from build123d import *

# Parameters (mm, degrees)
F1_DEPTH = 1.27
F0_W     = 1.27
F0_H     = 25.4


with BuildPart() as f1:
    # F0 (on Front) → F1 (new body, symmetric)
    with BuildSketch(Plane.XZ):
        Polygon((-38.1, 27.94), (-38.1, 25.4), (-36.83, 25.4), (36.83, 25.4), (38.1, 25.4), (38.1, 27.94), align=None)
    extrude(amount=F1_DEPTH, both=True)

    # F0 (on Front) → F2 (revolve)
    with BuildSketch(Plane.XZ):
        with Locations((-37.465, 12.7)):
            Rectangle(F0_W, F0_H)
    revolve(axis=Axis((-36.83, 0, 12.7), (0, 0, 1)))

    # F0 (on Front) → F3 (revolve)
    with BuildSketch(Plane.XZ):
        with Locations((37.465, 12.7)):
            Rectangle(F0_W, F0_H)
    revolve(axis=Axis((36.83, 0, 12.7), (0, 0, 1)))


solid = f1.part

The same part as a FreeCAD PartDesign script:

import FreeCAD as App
import Part
import Sketcher

V = App.Vector
Q = App.Units.Quantity

doc = App.newDocument("Part")
body = doc.addObject("PartDesign::Body", "Body")

# Sketch on XZ plane
sketch1 = body.newObject("Sketcher::SketchObject", "Sketch")
sketch1.AttachmentSupport = (doc.getObject("XZ_Plane"), [""])
sketch1.MapMode = "FlatFace"
sketch1.addGeometry([
    Part.LineSegment(V(-38.1, 27.9, 0), V(-38.1, 25.4, 0)),
    Part.LineSegment(V(-38.1, 25.4, 0), V(38.1, 25.4, 0)),
    Part.LineSegment(V(38.1, 25.4, 0), V(38.1, 27.9, 0)),
    Part.LineSegment(V(38.1, 27.9, 0), V(-38.1, 27.9, 0)),
], False)
sketch1.addConstraint([
    Sketcher.Constraint("Coincident", 0, 2, 1, 1),
    Sketcher.Constraint("Coincident", 1, 2, 2, 1),
    Sketcher.Constraint("Coincident", 2, 2, 3, 1),
    Sketcher.Constraint("Coincident", 3, 2, 0, 1),
    Sketcher.Constraint("Vertical", 0),
    Sketcher.Constraint("Horizontal", 1),
    Sketcher.Constraint("Vertical", 2),
    Sketcher.Constraint("Horizontal", 3),
    Sketcher.Constraint("DistanceX", 1, 1, 1, 2, Q("3 in")),
    Sketcher.Constraint("DistanceY", 0, 2, 0, 1, Q("0.1 in")),
    Sketcher.Constraint("DistanceY", -1, 1, 0, 2, Q("1 in")),
    Sketcher.Constraint("DistanceX", 0, 2, -1, 1, Q("1.5 in")),
])
pad1 = body.newObject("PartDesign::Pad", "Pad")
pad1.Profile = sketch1
pad1.Length = Q("0.1 in")
pad1.Midplane = True

# Sketch on XZ plane
sketch2 = body.newObject("Sketcher::SketchObject", "Sketch001")
sketch2.AttachmentSupport = (doc.getObject("XZ_Plane"), [""])
sketch2.MapMode = "FlatFace"
sketch2.addGeometry([
    Part.LineSegment(V(-38.1, 25.4, 0), V(-38.1, 0, 0)),
    Part.LineSegment(V(-38.1, 0, 0), V(-36.8, 0, 0)),
    Part.LineSegment(V(-36.8, 0, 0), V(-36.8, 25.4, 0)),
    Part.LineSegment(V(-36.8, 25.4, 0), V(-38.1, 25.4, 0)),
], False)
sketch2.addGeometry(Part.LineSegment(V(-36.8, 0, 0), V(-36.8, 25.4, 0)), True)  # axis
sketch2.addConstraint([
    Sketcher.Constraint("Coincident", 0, 2, 1, 1),
    Sketcher.Constraint("Coincident", 1, 2, 2, 1),
    Sketcher.Constraint("Coincident", 2, 2, 3, 1),
    Sketcher.Constraint("Coincident", 3, 2, 0, 1),
    Sketcher.Constraint("Vertical", 0),
    Sketcher.Constraint("Horizontal", 1),
    Sketcher.Constraint("Vertical", 2),
    Sketcher.Constraint("Horizontal", 3),
    Sketcher.Constraint("Vertical", 4),
    Sketcher.Constraint("Coincident", 4, 1, 1, 2),
    Sketcher.Constraint("PointOnObject", 0, 2, -1),
    Sketcher.Constraint("Horizontal", 3, 2, 4, 2),
    Sketcher.Constraint("DistanceY", 0, 2, 0, 1, Q("1 in")),
    Sketcher.Constraint("DistanceX", 1, 1, 1, 2, Q("0.05 in")),
    Sketcher.Constraint("DistanceX", 0, 2, -1, 1, Q("1.5 in")),
])
revolution = body.newObject("PartDesign::Revolution", "Revolution")
revolution.Profile = sketch2
revolution.ReferenceAxis = (sketch2, ["Axis0"])
revolution.Angle = 360

# Sketch on XZ plane
sketch3 = body.newObject("Sketcher::SketchObject", "Sketch002")
sketch3.AttachmentSupport = (doc.getObject("XZ_Plane"), [""])
sketch3.MapMode = "FlatFace"
sketch3.addGeometry([
    Part.LineSegment(V(36.8, 25.4, 0), V(36.8, 0, 0)),
    Part.LineSegment(V(36.8, 0, 0), V(38.1, 0, 0)),
    Part.LineSegment(V(38.1, 0, 0), V(38.1, 25.4, 0)),
    Part.LineSegment(V(38.1, 25.4, 0), V(36.8, 25.4, 0)),
], False)
sketch3.addGeometry(Part.LineSegment(V(36.8, 0, 0), V(36.8, 25.4, 0)), True)  # axis
sketch3.addConstraint([
    Sketcher.Constraint("Coincident", 0, 2, 1, 1),
    Sketcher.Constraint("Coincident", 1, 2, 2, 1),
    Sketcher.Constraint("Coincident", 2, 2, 3, 1),
    Sketcher.Constraint("Coincident", 3, 2, 0, 1),
    Sketcher.Constraint("Vertical", 0),
    Sketcher.Constraint("Horizontal", 1),
    Sketcher.Constraint("Vertical", 2),
    Sketcher.Constraint("Horizontal", 3),
    Sketcher.Constraint("Vertical", 4),
    Sketcher.Constraint("Coincident", 4, 1, 0, 2),
    Sketcher.Constraint("PointOnObject", 0, 2, -1),
    Sketcher.Constraint("Horizontal", 2, 2, 4, 2),
    Sketcher.Constraint("DistanceY", 0, 2, 0, 1, Q("1 in")),
    Sketcher.Constraint("DistanceX", 1, 1, 1, 2, Q("0.05 in")),
    Sketcher.Constraint("DistanceX", -1, 1, 1, 2, Q("1.5 in")),
])
revolution2 = body.newObject("PartDesign::Revolution", "Revolution001")
revolution2.Profile = sketch3
revolution2.ReferenceAxis = (sketch3, ["Axis0"])
revolution2.Angle = 360

doc.recompute()
